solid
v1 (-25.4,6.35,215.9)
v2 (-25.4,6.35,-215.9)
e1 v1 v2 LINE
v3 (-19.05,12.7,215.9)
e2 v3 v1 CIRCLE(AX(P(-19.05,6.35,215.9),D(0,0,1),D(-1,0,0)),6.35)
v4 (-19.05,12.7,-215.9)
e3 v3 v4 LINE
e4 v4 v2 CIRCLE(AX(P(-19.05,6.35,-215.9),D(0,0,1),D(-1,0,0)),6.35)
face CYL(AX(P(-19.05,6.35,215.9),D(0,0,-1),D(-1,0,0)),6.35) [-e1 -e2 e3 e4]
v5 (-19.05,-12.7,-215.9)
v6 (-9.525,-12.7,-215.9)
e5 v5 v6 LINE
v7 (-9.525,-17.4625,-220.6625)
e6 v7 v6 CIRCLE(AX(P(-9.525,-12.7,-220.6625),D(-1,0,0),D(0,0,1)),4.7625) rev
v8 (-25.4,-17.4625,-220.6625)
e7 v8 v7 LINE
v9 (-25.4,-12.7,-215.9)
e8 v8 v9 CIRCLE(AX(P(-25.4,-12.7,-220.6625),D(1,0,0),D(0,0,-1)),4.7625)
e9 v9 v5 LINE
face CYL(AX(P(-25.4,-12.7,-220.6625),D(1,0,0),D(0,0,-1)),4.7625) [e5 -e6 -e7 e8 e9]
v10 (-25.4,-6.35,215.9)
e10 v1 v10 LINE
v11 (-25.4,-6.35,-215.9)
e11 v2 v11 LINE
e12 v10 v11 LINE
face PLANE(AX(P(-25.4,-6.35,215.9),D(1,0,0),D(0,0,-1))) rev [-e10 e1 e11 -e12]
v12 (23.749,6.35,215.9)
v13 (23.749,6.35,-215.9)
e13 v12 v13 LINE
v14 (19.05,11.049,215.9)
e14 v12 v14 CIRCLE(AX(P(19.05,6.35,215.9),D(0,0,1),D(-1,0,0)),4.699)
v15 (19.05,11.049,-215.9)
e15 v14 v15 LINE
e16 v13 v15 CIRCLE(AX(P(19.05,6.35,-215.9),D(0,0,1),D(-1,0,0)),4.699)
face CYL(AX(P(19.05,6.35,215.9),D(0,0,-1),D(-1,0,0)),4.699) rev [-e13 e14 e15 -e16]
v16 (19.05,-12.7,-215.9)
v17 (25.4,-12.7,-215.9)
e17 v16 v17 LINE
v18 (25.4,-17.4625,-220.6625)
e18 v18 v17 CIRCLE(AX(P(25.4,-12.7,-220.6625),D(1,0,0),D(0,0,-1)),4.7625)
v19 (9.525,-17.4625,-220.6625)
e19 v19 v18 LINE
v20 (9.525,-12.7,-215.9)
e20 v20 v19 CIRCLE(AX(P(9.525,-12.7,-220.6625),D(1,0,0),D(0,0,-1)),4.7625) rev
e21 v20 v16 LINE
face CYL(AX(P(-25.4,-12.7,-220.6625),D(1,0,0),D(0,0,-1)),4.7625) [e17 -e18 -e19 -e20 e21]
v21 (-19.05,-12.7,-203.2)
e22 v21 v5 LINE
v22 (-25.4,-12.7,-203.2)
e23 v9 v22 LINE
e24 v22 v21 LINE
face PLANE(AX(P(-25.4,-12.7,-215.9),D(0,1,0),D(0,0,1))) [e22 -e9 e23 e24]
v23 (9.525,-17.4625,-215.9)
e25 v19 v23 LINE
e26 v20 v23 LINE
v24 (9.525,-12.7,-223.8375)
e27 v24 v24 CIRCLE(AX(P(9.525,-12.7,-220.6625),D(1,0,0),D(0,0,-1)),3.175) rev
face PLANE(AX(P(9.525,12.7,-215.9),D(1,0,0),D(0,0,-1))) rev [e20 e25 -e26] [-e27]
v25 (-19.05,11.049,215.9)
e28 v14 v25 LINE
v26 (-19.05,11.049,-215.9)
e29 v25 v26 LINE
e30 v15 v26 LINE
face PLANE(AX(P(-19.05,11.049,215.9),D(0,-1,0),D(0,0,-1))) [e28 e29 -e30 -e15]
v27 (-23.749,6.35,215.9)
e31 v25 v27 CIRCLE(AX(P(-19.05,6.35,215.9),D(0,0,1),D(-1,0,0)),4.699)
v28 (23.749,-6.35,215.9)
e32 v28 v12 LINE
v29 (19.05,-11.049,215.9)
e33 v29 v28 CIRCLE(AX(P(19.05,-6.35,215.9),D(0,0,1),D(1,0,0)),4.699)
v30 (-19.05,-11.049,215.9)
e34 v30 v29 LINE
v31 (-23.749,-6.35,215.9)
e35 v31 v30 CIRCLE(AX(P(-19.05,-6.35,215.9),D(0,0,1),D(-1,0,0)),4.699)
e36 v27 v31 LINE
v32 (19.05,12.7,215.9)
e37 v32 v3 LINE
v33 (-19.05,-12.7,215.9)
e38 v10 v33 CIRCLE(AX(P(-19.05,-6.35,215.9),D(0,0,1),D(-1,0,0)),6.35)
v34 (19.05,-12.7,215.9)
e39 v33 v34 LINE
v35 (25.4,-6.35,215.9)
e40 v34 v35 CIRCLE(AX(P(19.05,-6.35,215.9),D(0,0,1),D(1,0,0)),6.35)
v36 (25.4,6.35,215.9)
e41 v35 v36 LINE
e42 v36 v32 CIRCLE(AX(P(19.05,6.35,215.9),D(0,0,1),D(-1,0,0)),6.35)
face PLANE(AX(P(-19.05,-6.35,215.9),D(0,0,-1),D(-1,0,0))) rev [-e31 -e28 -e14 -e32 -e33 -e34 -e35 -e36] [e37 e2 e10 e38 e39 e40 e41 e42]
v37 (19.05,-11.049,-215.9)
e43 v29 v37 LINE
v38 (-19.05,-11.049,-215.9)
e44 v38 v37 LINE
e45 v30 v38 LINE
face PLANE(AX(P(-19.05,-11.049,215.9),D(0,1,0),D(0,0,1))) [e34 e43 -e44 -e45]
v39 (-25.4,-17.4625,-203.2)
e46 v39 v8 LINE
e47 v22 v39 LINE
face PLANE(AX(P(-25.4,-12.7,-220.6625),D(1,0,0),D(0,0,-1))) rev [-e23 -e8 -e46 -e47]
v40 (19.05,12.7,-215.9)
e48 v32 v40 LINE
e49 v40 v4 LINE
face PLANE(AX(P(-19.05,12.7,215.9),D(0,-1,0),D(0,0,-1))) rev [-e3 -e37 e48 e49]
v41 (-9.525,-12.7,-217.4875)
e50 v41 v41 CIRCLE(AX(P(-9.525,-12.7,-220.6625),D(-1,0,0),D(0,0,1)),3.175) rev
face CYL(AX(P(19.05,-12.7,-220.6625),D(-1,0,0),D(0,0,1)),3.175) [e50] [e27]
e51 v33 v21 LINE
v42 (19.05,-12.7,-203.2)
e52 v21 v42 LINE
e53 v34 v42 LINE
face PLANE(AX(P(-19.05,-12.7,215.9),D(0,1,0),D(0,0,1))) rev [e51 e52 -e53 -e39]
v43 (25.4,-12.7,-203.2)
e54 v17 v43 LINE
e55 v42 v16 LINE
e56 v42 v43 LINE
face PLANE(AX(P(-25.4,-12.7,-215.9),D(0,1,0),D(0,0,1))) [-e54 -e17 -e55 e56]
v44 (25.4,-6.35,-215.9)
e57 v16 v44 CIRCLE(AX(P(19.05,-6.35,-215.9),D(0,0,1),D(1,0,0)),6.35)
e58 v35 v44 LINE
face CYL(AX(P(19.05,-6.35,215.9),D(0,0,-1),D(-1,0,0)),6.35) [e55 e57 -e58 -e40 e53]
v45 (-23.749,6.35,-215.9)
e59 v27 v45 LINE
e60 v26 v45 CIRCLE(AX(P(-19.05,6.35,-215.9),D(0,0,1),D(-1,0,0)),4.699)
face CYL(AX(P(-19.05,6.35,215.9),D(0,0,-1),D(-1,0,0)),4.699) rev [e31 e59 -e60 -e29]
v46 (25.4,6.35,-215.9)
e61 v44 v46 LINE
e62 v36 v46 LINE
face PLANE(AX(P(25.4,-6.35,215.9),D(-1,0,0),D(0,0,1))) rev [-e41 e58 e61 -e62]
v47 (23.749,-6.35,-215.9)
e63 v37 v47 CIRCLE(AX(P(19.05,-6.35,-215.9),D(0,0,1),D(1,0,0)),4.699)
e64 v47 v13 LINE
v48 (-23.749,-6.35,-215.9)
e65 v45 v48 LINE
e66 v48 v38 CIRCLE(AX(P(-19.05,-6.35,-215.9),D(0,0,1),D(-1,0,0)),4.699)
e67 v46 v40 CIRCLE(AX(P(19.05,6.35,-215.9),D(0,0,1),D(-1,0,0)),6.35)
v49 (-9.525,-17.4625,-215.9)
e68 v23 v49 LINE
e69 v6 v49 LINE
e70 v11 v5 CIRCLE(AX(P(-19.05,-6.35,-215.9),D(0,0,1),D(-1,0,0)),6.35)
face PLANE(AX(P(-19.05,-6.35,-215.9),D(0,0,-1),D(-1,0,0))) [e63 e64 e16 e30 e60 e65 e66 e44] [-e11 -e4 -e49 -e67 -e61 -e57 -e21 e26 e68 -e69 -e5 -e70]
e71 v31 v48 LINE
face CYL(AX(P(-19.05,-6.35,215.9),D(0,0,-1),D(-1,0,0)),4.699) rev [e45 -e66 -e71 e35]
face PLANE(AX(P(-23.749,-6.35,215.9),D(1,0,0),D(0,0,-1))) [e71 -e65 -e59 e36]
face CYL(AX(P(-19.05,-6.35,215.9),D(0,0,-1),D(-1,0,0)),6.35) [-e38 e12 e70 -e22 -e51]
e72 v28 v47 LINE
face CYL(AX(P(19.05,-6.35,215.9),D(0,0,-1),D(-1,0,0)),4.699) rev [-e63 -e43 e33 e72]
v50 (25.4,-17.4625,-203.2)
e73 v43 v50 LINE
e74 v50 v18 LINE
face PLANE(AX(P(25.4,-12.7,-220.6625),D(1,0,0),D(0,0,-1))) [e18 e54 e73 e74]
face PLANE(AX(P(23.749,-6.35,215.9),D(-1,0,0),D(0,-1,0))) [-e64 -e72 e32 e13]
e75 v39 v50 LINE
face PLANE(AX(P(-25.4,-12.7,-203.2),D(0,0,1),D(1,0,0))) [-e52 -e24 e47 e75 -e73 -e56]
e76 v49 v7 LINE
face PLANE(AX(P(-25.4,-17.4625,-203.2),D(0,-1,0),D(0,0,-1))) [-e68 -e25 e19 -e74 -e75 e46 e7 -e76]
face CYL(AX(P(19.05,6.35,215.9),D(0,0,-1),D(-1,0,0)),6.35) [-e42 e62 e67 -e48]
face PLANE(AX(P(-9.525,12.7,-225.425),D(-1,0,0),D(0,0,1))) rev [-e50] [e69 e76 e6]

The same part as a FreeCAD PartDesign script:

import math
import FreeCAD as App
import Part
import Sketcher
from FreeCAD import Vector
Q = App.Units.Quantity

doc = App.newDocument("Part")
body = doc.addObject("PartDesign::Body", "Body")

# Sketch on XY plane
sketch1 = doc.addObject("Sketcher::SketchObject", "Sketch")
body.addObject(sketch1)
sketch1.AttachmentSupport = (doc.XY_Plane, [""])
sketch1.MapMode = "FlatFace"
sketch1.addGeometry([
    Part.LineSegment(Vector(-19.1, -12.7, 0), Vector(19.1, -12.7, 0)),  # 0
    Part.ArcOfCircle(Part.Circle(Vector(19.1, -6.4, 0), Vector(0, 0, 1), 6.3), math.radians(-90), math.radians(0)),  # 1
    Part.LineSegment(Vector(25.4, -6.3, 0), Vector(25.4, 6.3, 0)),  # 2
    Part.ArcOfCircle(Part.Circle(Vector(19.1, 6.4, 0), Vector(0, 0, 1), 6.3), math.radians(0), math.radians(90)),  # 3
    Part.LineSegment(Vector(19.1, 12.7, 0), Vector(-19.1, 12.7, 0)),  # 4
    Part.ArcOfCircle(Part.Circle(Vector(-19.1, 6.4, 0), Vector(0, 0, 1), 6.3), math.radians(90), math.radians(180)),  # 5
    Part.LineSegment(Vector(-25.4, 6.3, 0), Vector(-25.4, -6.3, 0)),  # 6
    Part.ArcOfCircle(Part.Circle(Vector(-19.1, -6.4, 0), Vector(0, 0, 1), 6.3), math.radians(180), math.radians(270)),  # 7
    Part.ArcOfCircle(Part.Circle(Vector(-19.1, 6.4, 0), Vector(0, 0, 1), 4.7), math.radians(90), math.radians(180)),  # 8
    Part.LineSegment(Vector(-19.1, 11, 0), Vector(19.1, 11, 0)),  # 9
    Part.ArcOfCircle(Part.Circle(Vector(19.1, 6.4, 0), Vector(0, 0, 1), 4.7), math.radians(0), math.radians(90)),  # 10
    Part.LineSegment(Vector(23.7, 6.3, 0), Vector(23.7, -6.3, 0)),  # 11
    Part.ArcOfCircle(Part.Circle(Vector(19.1, -6.4, 0), Vector(0, 0, 1), 4.7), math.radians(-90), math.radians(0)),  # 12
    Part.LineSegment(Vector(19.1, -11, 0), Vector(-19.1, -11, 0)),  # 13
    Part.ArcOfCircle(Part.Circle(Vector(-19.1, -6.4, 0), Vector(0, 0, 1), 4.7), math.radians(180), math.radians(270)),  # 14
    Part.LineSegment(Vector(-23.7, -6.3, 0), Vector(-23.7, 6.3, 0)),  # 15
], False)
sketch1.addConstraint([
    Sketcher.Constraint("Tangent", 0, 2, 1, 1),
    Sketcher.Constraint("Tangent", 1, 2, 2, 1),
    Sketcher.Constraint("Tangent", 2, 2, 3, 1),
    Sketcher.Constraint("Tangent", 3, 2, 4, 1),
    Sketcher.Constraint("Tangent", 4, 2, 5, 1),
    Sketcher.Constraint("Tangent", 5, 2, 6, 1),
    Sketcher.Constraint("Tangent", 6, 2, 7, 1),
    Sketcher.Constraint("Tangent", 7, 2, 0, 1),
    Sketcher.Constraint("Tangent", 8, 1, 9, 1),
    Sketcher.Constraint("Tangent", 9, 2, 10, 2),
    Sketcher.Constraint("Tangent", 10, 1, 11, 1),
    Sketcher.Constraint("Tangent", 11, 2, 12, 2),
    Sketcher.Constraint("Tangent", 12, 1, 13, 1),
    Sketcher.Constraint("Tangent", 13, 2, 14, 2),
    Sketcher.Constraint("Tangent", 14, 1, 15, 1),
    Sketcher.Constraint("Tangent", 15, 2, 8, 2),
    Sketcher.Constraint("Horizontal", 0),
    Sketcher.Constraint("Vertical", 2),
    Sketcher.Constraint("Horizontal", 4),
    Sketcher.Constraint("Vertical", 6),
    Sketcher.Constraint("Horizontal", 9),
    Sketcher.Constraint("Vertical", 11),
    Sketcher.Constraint("Horizontal", 13),
    Sketcher.Constraint("Vertical", 15),
    Sketcher.Constraint("Coincident", 8, 3, 5, 3),
    Sketcher.Constraint("Coincident", 10, 3, 3, 3),
    Sketcher.Constraint("Coincident", 12, 3, 1, 3),
    Sketcher.Constraint("Equal", 1, 3),
    Sketcher.Constraint("Equal", 3, 5),
    Sketcher.Constraint("Equal", 5, 7),
    Sketcher.Constraint("Equal", 12, 14),
    Sketcher.Constraint("Symmetric", 1, 3, 5, 3, -1, 1),
    Sketcher.Constraint("Radius", 1, Q("0.25 in")),
    Sketcher.Constraint("DistanceX", 0, 1, 0, 2, Q("1.5 in")),
    Sketcher.Constraint("DistanceY", 2, 1, 2, 2, Q("0.5 in")),
    Sketcher.Constraint("Radius", 8, Q("0.185 in")),
])
pad1 = doc.addObject("PartDesign::Pad", "Pad")
body.addObject(pad1)
pad1.Profile = sketch1
pad1.Length = Q("17 in")
pad1.Midplane = True

# Sketch on YZ plane
sketch2 = doc.addObject("Sketcher::SketchObject", "Sketch001")
body.addObject(sketch2)
sketch2.AttachmentSupport = (doc.YZ_Plane, [""])
sketch2.MapMode = "FlatFace"
sketch2.AttachmentOffset = App.Placement(Vector(0, 0, 1 * 25.4), App.Rotation())
sketch2.addGeometry([
    Part.LineSegment(Vector(-12.7, -203.2, 0), Vector(-17.5, -203.2, 0)),
    Part.LineSegment(Vector(-17.5, -203.2, 0), Vector(-17.5, -220.7, 0)),
    Part.ArcOfCircle(Part.Circle(Vector(-12.7, -220.7, 0), Vector(0, 0, 1), 4.8), math.radians(180), math.radians(450)),
    Part.LineSegment(Vector(-12.7, -215.9, 0), Vector(-12.7, -203.2, 0)),
], False)
sketch2.addConstraint([
    Sketcher.Constraint("Coincident", 0, 2, 1, 1),
    Sketcher.Constraint("Tangent", 1, 2, 2, 1),
    Sketcher.Constraint("Coincident", 2, 2, 3, 1),
    Sketcher.Constraint("Coincident", 3, 2, 0, 1),
    Sketcher.Constraint("Horizontal", 0),
    Sketcher.Constraint("Vertical", 1),
    Sketcher.Constraint("Vertical", 3),
    Sketcher.Constraint("DistanceY", 3, 1, 3, 2, Q("0.5 in")),
    Sketcher.Constraint("DistanceY", 0, 2, -1, 1, Q("8 in")),
    Sketcher.Constraint("Radius", 2, Q("0.1875 in")),
    Sketcher.Constraint("DistanceX", 2, 3, -1, 1, Q("0.5 in")),
    Sketcher.Constraint("DistanceX", 2, 2, -1, 1, Q("0.5 in")),
])
pad2 = doc.addObject("PartDesign::Pad", "Pad001")
body.addObject(pad2)
pad2.Profile = sketch2
pad2.Length = Q("2 in")
pad2.Reversed = True

# Sketch on XZ plane
sketch3 = doc.addObject("Sketcher::SketchObject", "Sketch002")
body.addObject(sketch3)
sketch3.AttachmentSupport = (doc.XZ_Plane, [""])
sketch3.MapMode = "FlatFace"
sketch3.AttachmentOffset = App.Placement(Vector(0, 0, 0.6875 * 25.4), App.Rotation())
sketch3.addGeometry([
    Part.LineSegment(Vector(-10, -216, 0), Vector(-10, -225, 0)),
    Part.LineSegment(Vector(-10, -225, 0), Vector(10, -225, 0)),
    Part.LineSegment(Vector(10, -225, 0), Vector(10, -216, 0)),
    Part.LineSegment(Vector(10, -216, 0), Vector(-10, -216, 0)),
], False)
sketch3.addConstraint([
    Sketcher.Constraint("Coincident", 0, 2, 1, 1),
    Sketcher.Constraint("Coincident", 1, 2, 2, 1),
    Sketcher.Constraint("Coincident", 2, 2, 3, 1),
    Sketcher.Constraint("Coincident", 3, 2, 0, 1),
    Sketcher.Constraint("Vertical", 0),
    Sketcher.Constraint("Horizontal", 1),
    Sketcher.Constraint("Vertical", 2),
    Sketcher.Constraint("Horizontal", 3),
    Sketcher.Constraint("DistanceX", 1, 1, 1, 2, Q("0.75 in")),
    Sketcher.Constraint("DistanceY", 2, 2, -1, 1, Q("8.5 in")),
    Sketcher.Constraint("DistanceY", 0, 2, 0, 1, Q("0.375 in")),
    Sketcher.Constraint("DistanceX", 0, 2, -1, 1, Q("0.375 in")),
])
pocket1 = doc.addObject("PartDesign::Pocket", "Pocket")
body.addObject(pocket1)
pocket1.Profile = sketch3
pocket1.Type = "ThroughAll"

# Sketch on YZ plane
sketch4 = doc.addObject("Sketcher::SketchObject", "Sketch003")
body.addObject(sketch4)
sketch4.AttachmentSupport = (doc.YZ_Plane, [""])
sketch4.MapMode = "FlatFace"
sketch4.addGeometry(Part.Circle(Vector(-12.7, -220.7, 0), Vector(0, 0, 1), 3.2), False)
sketch4.addConstraint([
    Sketcher.Constraint("Diameter", 0, Q("0.25 in")),
    Sketcher.Constraint("DistanceX", 0, 3, -1, 1, Q("0.5 in")),
    Sketcher.Constraint("DistanceY", 0, 3, -1, 1, Q("8.6875 in")),
])
pad3 = doc.addObject("PartDesign::Pad", "Pad002")
body.addObject(pad3)
pad3.Profile = sketch4
pad3.Length = Q("1.5 in")
pad3.Midplane = True

doc.recompute()
